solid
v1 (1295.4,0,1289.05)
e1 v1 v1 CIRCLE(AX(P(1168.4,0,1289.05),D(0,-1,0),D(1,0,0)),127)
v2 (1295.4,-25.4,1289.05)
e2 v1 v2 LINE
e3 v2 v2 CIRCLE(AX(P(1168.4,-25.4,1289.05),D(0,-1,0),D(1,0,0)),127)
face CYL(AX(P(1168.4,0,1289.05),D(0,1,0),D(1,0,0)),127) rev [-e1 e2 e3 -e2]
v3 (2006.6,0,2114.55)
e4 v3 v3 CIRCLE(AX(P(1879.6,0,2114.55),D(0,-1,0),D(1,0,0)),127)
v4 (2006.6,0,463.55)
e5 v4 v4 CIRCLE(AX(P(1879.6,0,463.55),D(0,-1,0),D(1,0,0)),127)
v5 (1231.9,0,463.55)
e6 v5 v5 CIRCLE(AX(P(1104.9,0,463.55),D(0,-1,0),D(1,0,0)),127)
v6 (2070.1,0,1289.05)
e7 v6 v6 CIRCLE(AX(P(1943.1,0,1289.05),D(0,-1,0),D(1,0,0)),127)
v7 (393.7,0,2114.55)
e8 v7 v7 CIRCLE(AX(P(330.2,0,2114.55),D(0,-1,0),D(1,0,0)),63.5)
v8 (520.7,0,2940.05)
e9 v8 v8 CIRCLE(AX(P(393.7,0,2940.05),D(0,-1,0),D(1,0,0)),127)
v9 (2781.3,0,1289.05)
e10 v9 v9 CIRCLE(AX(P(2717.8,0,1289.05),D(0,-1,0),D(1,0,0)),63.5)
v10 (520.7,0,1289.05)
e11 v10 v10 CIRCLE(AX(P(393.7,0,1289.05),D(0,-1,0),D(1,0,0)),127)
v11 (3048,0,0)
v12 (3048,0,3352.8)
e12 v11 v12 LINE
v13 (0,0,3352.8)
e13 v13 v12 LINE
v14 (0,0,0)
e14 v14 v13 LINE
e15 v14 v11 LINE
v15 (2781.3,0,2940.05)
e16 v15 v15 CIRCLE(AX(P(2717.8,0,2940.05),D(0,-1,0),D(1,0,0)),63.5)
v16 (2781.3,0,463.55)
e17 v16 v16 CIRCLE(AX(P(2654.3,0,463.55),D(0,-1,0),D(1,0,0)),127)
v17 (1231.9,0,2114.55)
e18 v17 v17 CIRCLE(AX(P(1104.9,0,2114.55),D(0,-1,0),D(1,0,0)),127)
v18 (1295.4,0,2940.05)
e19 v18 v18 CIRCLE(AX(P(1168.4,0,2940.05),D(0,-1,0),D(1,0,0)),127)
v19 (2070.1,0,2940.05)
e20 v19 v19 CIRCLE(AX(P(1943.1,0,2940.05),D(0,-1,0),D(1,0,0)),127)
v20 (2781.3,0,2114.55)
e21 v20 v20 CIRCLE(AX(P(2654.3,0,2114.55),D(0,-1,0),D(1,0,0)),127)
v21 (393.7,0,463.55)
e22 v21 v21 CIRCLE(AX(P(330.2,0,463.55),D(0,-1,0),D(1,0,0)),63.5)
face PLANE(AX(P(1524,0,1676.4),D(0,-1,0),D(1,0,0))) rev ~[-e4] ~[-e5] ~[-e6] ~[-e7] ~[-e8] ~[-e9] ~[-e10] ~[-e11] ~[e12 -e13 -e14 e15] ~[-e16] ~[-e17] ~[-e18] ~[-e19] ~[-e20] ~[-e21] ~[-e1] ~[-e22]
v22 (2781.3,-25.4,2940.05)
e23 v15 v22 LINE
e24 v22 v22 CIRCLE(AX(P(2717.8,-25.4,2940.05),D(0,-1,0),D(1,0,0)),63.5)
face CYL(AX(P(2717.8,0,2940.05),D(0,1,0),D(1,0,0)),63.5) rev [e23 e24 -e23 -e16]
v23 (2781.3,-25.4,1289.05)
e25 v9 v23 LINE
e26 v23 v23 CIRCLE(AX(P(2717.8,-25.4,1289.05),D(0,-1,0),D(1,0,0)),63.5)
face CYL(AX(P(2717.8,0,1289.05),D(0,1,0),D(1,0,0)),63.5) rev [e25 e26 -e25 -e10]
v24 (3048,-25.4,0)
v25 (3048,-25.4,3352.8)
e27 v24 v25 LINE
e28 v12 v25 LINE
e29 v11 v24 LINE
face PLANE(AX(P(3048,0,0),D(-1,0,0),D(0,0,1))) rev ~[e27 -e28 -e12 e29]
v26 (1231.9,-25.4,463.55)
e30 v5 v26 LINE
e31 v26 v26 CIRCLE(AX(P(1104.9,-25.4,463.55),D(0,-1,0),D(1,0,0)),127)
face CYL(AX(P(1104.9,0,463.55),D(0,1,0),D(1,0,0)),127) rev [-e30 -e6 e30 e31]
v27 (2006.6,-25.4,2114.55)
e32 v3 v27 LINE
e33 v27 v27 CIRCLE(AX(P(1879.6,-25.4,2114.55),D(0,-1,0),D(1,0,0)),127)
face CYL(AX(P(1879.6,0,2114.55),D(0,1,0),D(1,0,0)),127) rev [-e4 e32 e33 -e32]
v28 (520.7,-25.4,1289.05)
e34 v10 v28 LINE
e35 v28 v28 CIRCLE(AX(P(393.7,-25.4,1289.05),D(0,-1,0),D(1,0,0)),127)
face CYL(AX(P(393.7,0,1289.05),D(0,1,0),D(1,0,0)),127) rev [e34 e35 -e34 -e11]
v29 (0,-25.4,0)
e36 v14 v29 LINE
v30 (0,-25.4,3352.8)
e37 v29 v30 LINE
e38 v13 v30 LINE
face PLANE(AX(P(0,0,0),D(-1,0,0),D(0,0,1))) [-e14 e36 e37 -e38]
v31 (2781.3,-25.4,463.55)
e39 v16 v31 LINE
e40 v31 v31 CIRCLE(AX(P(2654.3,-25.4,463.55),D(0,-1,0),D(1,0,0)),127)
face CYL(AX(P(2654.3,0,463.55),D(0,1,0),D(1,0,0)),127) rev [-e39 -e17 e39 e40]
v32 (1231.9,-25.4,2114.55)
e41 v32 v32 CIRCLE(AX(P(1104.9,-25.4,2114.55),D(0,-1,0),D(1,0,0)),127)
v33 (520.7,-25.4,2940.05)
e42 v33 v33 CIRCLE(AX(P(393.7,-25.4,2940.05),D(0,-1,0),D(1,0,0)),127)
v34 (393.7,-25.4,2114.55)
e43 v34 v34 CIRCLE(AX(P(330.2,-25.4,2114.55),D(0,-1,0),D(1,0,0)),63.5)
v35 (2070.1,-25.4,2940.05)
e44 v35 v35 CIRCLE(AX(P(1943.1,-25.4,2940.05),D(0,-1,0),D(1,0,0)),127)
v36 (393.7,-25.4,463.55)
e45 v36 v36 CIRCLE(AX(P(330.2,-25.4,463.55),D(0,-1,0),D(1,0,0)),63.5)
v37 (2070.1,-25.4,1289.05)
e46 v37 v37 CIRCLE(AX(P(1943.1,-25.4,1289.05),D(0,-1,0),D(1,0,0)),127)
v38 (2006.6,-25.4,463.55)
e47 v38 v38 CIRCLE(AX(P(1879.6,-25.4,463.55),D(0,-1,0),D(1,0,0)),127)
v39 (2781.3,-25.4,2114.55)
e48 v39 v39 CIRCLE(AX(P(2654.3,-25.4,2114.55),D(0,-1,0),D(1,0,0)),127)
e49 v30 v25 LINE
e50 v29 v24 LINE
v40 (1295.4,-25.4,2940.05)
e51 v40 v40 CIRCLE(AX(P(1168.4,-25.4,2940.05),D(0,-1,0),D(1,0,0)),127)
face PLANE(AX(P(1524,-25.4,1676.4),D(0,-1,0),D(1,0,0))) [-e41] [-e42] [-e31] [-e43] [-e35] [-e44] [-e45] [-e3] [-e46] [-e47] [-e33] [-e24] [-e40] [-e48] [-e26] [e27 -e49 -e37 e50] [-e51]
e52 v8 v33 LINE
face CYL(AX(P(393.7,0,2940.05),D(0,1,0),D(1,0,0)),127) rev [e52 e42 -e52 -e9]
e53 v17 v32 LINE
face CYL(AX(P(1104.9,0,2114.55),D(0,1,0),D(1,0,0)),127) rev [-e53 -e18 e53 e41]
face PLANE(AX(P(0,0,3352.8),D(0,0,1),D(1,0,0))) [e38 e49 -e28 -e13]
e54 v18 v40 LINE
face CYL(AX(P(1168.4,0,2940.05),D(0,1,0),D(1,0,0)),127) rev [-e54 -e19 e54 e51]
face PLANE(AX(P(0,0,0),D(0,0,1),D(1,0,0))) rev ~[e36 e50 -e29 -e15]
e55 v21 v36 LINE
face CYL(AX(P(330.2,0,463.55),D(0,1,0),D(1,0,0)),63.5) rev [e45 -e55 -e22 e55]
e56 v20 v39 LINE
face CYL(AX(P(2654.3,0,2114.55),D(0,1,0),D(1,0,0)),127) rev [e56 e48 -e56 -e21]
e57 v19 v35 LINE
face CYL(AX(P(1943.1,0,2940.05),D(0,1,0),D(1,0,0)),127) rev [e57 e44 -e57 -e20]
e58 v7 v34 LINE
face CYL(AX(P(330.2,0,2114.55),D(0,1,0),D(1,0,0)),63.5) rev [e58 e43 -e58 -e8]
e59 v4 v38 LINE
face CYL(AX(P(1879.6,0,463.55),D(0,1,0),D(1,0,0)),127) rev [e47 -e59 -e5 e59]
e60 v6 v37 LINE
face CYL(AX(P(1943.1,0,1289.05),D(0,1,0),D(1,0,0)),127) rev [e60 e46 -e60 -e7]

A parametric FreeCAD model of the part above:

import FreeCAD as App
import Part
import Sketcher
Q = App.Units.Quantity


def add_polygon(sketch, points):
    """Adds a closed chain of lines whose ends are joined by coincident constraints."""
    first, n = sketch.GeometryCount, len(points)
    for a, b in zip(points, points[1:] + points[:1]):
        sketch.addGeometry(Part.LineSegment(App.Vector(*a, 0), App.Vector(*b, 0)), False)
    for i in range(n):
        sketch.addConstraint(Sketcher.Constraint("Coincident", first + i, 2, first + (i + 1) % n, 1))

doc = App.newDocument("Part")
body = doc.addObject("PartDesign::Body", "Body")

sketch1 = body.newObject("Sketcher::SketchObject", "Sketch")
sketch1.AttachmentSupport = (doc.getObject("XZ_Plane"), [""])
sketch1.MapMode = "FlatFace"
add_polygon(sketch1, [(0, 3353), (0, 0), (3048, 0), (3048, 3353)])
sketch1.addGeometry(Part.Circle(App.Vector(330, 464, 0), App.Vector(0, 0, 1), 64), False)
sketch1.addGeometry(Part.Circle(App.Vector(1105, 464, 0), App.Vector(0, 0, 1), 127), False)
sketch1.addGeometry(Part.Circle(App.Vector(394, 1289, 0), App.Vector(0, 0, 1), 127), False)
sketch1.addGeometry(Part.Circle(App.Vector(1168, 1289, 0), App.Vector(0, 0, 1), 127), False)
sketch1.addGeometry(Part.Circle(App.Vector(1880, 464, 0), App.Vector(0, 0, 1), 127), False)
sketch1.addGeometry(Part.Circle(App.Vector(2654, 464, 0), App.Vector(0, 0, 1), 127), False)
sketch1.addGeometry(Part.Circle(App.Vector(1943, 1289, 0), App.Vector(0, 0, 1), 127), False)
sketch1.addGeometry(Part.Circle(App.Vector(2718, 1289, 0), App.Vector(0, 0, 1), 64), False)
sketch1.addGeometry(Part.Circle(App.Vector(330, 2115, 0), App.Vector(0, 0, 1), 64), False)
sketch1.addGeometry(Part.Circle(App.Vector(1105, 2115, 0), App.Vector(0, 0, 1), 127), False)
sketch1.addGeometry(Part.Circle(App.Vector(394, 2940, 0), App.Vector(0, 0, 1), 127), False)
sketch1.addGeometry(Part.Circle(App.Vector(1168, 2940, 0), App.Vector(0, 0, 1), 127), False)
sketch1.addGeometry(Part.Circle(App.Vector(1880, 2115, 0), App.Vector(0, 0, 1), 127), False)
sketch1.addGeometry(Part.Circle(App.Vector(2654, 2115, 0), App.Vector(0, 0, 1), 127), False)
sketch1.addGeometry(Part.Circle(App.Vector(1943, 2940, 0), App.Vector(0, 0, 1), 127), False)
sketch1.addGeometry(Part.Circle(App.Vector(2718, 2940, 0), App.Vector(0, 0, 1), 64), False)
sketch1.addConstraint(Sketcher.Constraint("Vertical", 0))
sketch1.addConstraint(Sketcher.Constraint("Horizontal", 1))
sketch1.addConstraint(Sketcher.Constraint("Vertical", 2))
sketch1.addConstraint(Sketcher.Constraint("Horizontal", 3))
sketch1.addConstraint(Sketcher.Constraint("Coincident", 0, 2, -1, 1))
sketch1.addConstraint(Sketcher.Constraint("Equal", 5, 6))
sketch1.addConstraint(Sketcher.Constraint("Equal", 6, 7))
sketch1.addConstraint(Sketcher.Constraint("Equal", 7, 8))
sketch1.addConstraint(Sketcher.Constraint("Equal", 8, 9))
sketch1.addConstraint(Sketcher.Constraint("Equal", 9, 10))
sketch1.addConstraint(Sketcher.Constraint("Equal", 4, 11))
sketch1.addConstraint(Sketcher.Constraint("Equal", 11, 12))
sketch1.addConstraint(Sketcher.Constraint("Equal", 10, 13))
sketch1.addConstraint(Sketcher.Constraint("Equal", 13, 14))
sketch1.addConstraint(Sketcher.Constraint("Equal", 14, 15))
sketch1.addConstraint(Sketcher.Constraint("Equal", 15, 16))
sketch1.addConstraint(Sketcher.Constraint("Equal", 16, 17))
sketch1.addConstraint(Sketcher.Constraint("Equal", 17, 18))
sketch1.addConstraint(Sketcher.Constraint("Equal", 12, 19))
sketch1.addConstraint(Sketcher.Constraint("Horizontal", 4, 3, 5, 3))
sketch1.addConstraint(Sketcher.Constraint("Horizontal", 6, 3, 7, 3))
sketch1.addConstraint(Sketcher.Constraint("Horizontal", 5, 3, 8, 3))
sketch1.addConstraint(Sketcher.Constraint("Horizontal", 8, 3, 9, 3))
sketch1.addConstraint(Sketcher.Constraint("Horizontal", 7, 3, 10, 3))
sketch1.addConstraint(Sketcher.Constraint("Horizontal", 10, 3, 11, 3))
sketch1.addConstraint(Sketcher.Constraint("Horizontal", 12, 3, 13, 3))
sketch1.addConstraint(Sketcher.Constraint("Horizontal", 14, 3, 15, 3))
sketch1.addConstraint(Sketcher.Constraint("Horizontal", 13, 3, 16, 3))
sketch1.addConstraint(Sketcher.Constraint("Horizontal", 16, 3, 17, 3))
sketch1.addConstraint(Sketcher.Constraint("Horizontal", 15, 3, 18, 3))
sketch1.addConstraint(Sketcher.Constraint("Horizontal", 18, 3, 19, 3))
sketch1.addConstraint(Sketcher.Constraint("Vertical", 4, 3, 12, 3))
sketch1.addConstraint(Sketcher.Constraint("Vertical", 5, 3, 13, 3))
sketch1.addConstraint(Sketcher.Constraint("Vertical", 6, 3, 14, 3))
sketch1.addConstraint(Sketcher.Constraint("Vertical", 7, 3, 15, 3))
sketch1.addConstraint(Sketcher.Constraint("Vertical", 8, 3, 16, 3))
sketch1.addConstraint(Sketcher.Constraint("Vertical", 9, 3, 17, 3))
sketch1.addConstraint(Sketcher.Constraint("Vertical", 10, 3, 18, 3))
sketch1.addConstraint(Sketcher.Constraint("Vertical", 11, 3, 19, 3))
sketch1.addConstraint(Sketcher.Constraint("Diameter", 4, Q("5 in")))
sketch1.addConstraint(Sketcher.Constraint("Diameter", 5, Q("10 in")))
sketch1.addConstraint(Sketcher.Constraint("DistanceX", 1, 1, 1, 2, Q("120 in")))
sketch1.addConstraint(Sketcher.Constraint("DistanceY", 0, 2, 0, 1, Q("132 in")))
sketch1.addConstraint(Sketcher.Constraint("DistanceX", -1, 1, 4, 3, Q("13 in")))
sketch1.addConstraint(Sketcher.Constraint("DistanceX", -1, 1, 7, 3, Q("46 in")))
sketch1.addConstraint(Sketcher.Constraint("DistanceX", -1, 1, 8, 3, Q("74 in")))
sketch1.addConstraint(Sketcher.Constraint("DistanceX", -1, 1, 11, 3, Q("107 in")))
sketch1.addConstraint(Sketcher.Constraint("DistanceX", 6, 3, 5, 3, Q("28 in")))
sketch1.addConstraint(Sketcher.Constraint("DistanceX", 5, 3, 9, 3, Q("61 in")))
sketch1.addConstraint(Sketcher.Constraint("DistanceX", 10, 3, 9, 3, Q("28 in")))
sketch1.addConstraint(Sketcher.Constraint("DistanceY", 4, 3, 12, 3, Q("65 in")))
sketch1.addConstraint(Sketcher.Constraint("DistanceY", 6, 3, 14, 3, Q("65 in")))
sketch1.addConstraint(Sketcher.Constraint("DistanceX", -1, 1, 5, 3, Q("43.5 in")))
sketch1.addConstraint(Sketcher.Constraint("DistanceY", 4, 3, 6, 3, Q("32.5 in")))
sketch1.addConstraint(Sketcher.Constraint("DistanceY", -1, 1, 4, 3, Q("18.25 in")))
pad1 = body.newObject("PartDesign::Pad", "Pad")
pad1.Profile = sketch1
pad1.Length = Q("1 in")

doc.recompute()
